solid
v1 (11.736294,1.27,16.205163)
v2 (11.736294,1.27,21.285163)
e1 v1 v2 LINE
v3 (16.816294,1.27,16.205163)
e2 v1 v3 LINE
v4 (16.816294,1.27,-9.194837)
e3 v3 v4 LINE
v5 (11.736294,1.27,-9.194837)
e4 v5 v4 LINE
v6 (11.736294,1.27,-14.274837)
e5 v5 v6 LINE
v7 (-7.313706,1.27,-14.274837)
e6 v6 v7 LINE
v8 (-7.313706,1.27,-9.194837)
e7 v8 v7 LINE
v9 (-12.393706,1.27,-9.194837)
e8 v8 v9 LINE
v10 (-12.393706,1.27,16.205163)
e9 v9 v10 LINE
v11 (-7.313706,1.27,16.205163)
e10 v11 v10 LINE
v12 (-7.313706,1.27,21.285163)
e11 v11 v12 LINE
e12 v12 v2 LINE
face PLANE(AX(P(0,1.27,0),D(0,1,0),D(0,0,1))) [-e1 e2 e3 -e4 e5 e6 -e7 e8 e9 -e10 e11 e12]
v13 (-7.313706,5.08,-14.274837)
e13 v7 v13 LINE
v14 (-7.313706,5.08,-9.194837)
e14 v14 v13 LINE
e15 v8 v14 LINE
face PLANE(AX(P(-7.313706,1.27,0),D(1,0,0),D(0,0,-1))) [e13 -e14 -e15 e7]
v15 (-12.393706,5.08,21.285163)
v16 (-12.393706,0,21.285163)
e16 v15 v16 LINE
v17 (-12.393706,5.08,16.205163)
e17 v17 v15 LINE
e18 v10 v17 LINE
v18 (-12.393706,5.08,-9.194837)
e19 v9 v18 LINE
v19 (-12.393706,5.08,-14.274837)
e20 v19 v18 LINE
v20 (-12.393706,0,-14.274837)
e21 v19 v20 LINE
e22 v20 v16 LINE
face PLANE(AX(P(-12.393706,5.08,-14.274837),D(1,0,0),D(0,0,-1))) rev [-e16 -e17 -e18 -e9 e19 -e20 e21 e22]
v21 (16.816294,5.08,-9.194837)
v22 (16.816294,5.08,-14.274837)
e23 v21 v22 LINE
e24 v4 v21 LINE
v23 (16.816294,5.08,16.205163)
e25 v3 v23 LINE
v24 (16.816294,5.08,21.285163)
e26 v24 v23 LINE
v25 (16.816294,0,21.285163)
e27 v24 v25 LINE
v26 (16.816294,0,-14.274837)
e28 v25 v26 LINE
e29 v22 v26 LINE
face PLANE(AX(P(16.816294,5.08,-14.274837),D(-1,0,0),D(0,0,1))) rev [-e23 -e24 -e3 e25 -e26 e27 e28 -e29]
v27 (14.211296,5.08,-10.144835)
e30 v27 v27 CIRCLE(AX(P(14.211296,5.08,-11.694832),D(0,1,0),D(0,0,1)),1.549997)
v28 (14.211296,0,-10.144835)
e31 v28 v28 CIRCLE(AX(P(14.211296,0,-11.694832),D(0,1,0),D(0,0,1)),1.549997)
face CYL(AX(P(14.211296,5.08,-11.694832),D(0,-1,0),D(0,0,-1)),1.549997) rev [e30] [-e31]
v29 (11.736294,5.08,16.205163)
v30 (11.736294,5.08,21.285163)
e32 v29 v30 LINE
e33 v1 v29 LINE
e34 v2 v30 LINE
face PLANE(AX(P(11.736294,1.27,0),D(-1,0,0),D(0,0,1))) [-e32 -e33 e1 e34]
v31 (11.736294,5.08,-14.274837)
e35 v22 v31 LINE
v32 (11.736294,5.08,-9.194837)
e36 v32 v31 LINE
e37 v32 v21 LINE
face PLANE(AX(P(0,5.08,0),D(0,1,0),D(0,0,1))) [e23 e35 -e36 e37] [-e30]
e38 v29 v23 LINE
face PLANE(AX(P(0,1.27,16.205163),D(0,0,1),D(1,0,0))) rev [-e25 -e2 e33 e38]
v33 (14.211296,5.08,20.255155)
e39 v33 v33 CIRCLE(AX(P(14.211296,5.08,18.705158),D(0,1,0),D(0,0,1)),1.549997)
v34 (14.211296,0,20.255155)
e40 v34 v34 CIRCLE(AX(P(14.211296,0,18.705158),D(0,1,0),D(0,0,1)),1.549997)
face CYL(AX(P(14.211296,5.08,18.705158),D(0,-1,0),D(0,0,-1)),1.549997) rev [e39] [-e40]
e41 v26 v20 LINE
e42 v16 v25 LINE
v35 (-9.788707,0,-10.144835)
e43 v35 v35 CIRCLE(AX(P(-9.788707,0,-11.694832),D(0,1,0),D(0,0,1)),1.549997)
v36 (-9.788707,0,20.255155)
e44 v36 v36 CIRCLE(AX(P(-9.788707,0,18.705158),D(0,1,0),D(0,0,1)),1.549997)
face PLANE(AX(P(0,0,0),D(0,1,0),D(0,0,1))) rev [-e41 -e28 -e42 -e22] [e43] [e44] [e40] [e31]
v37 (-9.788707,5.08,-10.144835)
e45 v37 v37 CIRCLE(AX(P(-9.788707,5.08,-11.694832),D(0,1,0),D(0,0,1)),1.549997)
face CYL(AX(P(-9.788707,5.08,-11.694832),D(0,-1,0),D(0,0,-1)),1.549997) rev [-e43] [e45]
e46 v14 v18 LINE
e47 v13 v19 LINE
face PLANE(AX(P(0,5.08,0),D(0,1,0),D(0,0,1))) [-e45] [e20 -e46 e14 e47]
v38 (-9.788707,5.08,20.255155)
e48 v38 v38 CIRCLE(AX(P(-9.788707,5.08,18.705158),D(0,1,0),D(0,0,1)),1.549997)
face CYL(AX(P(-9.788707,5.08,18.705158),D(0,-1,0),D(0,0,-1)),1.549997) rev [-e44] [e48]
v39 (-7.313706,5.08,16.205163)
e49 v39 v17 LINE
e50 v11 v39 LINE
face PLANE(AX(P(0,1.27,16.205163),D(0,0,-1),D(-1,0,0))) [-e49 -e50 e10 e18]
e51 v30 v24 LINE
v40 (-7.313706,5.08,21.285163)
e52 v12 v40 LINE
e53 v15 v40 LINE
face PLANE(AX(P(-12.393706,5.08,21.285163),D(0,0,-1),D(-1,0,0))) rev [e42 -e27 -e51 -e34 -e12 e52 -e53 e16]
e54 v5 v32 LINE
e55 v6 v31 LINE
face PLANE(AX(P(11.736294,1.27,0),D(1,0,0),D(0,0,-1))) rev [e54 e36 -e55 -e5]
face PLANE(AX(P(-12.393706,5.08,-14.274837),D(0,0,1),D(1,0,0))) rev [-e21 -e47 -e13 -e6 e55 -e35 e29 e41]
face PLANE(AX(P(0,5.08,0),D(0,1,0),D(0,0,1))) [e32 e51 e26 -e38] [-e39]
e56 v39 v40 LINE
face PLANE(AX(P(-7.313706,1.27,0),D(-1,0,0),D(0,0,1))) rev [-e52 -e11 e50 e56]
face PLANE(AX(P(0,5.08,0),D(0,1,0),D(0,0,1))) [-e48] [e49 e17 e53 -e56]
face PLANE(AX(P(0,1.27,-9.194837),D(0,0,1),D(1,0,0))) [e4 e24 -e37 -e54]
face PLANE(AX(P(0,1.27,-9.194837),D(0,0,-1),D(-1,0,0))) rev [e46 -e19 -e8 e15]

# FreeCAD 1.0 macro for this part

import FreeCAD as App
import Part
import Sketcher
from FreeCAD import Vector
Q = App.Units.Quantity

doc = App.newDocument("Part")
body = doc.addObject("PartDesign::Body", "Body")

# Sketch on XZ plane
sketch1 = body.newObject("Sketcher::SketchObject", "Sketch")
sketch1.AttachmentSupport = (doc.getObject("XZ_Plane"), [""])
sketch1.MapMode = "FlatFace"
sketch1.addGeometry([
    Part.LineSegment(Vector(-12.4, -14.3, 0), Vector(-12.4, 21.3, 0)),  # 0
    Part.LineSegment(Vector(-12.4, 21.3, 0), Vector(16.8, 21.3, 0)),  # 1
    Part.LineSegment(Vector(16.8, 21.3, 0), Vector(16.8, -14.3, 0)),  # 2
    Part.LineSegment(Vector(16.8, -14.3, 0), Vector(-12.4, -14.3, 0)),  # 3
    Part.Circle(Vector(-9.8, 18.7, 0), Vector(0, 0, 1), 1.5),  # 4
    Part.Circle(Vector(14.2, 18.7, 0), Vector(0, 0, 1), 1.5),  # 5
    Part.Circle(Vector(-9.8, -11.7, 0), Vector(0, 0, 1), 1.5),  # 6
    Part.Circle(Vector(14.2, -11.7, 0), Vector(0, 0, 1), 1.5),  # 7
], False)
sketch1.addConstraint([
    Sketcher.Constraint("Coincident", 0, 2, 1, 1),
    Sketcher.Constraint("Coincident", 1, 2, 2, 1),
    Sketcher.Constraint("Coincident", 2, 2, 3, 1),
    Sketcher.Constraint("Coincident", 3, 2, 0, 1),
    Sketcher.Constraint("Vertical", 0),
    Sketcher.Constraint("Horizontal", 1),
    Sketcher.Constraint("Vertical", 2),
    Sketcher.Constraint("Horizontal", 3),
    Sketcher.Constraint("Equal", 4, 5),
    Sketcher.Constraint("Equal", 5, 6),
    Sketcher.Constraint("Equal", 6, 7),
    Sketcher.Constraint("Horizontal", 4, 3, 5, 3),
    Sketcher.Constraint("Horizontal", 6, 3, 7, 3),
    Sketcher.Constraint("Vertical", 4, 3, 6, 3),
    Sketcher.Constraint("Vertical", 5, 3, 7, 3),
    Sketcher.Constraint("DistanceY", 0, 1, 0, 2, Q("1.4 in")),
    Sketcher.Constraint("DistanceX", 1, 1, 1, 2, Q("1.15 in")),
    Sketcher.Constraint("Diameter", 4, 3.099994),
    Sketcher.Constraint("DistanceX", -1, 1, 5, 3, Q("0.5594998 in")),
    Sketcher.Constraint("DistanceX", 0, 2, 4, 3, 2.604999),
    Sketcher.Constraint("DistanceX", 0, 2, 5, 3, 26.605001),
    Sketcher.Constraint("DistanceY", 6, 3, 4, 3, 30.39999),
    Sketcher.Constraint("DistanceY", -1, 1, 4, 3, 18.705158),
    Sketcher.Constraint("DistanceY", -1, 1, 0, 2, 21.285163),
])
pad1 = body.newObject("PartDesign::Pad", "Pad")
pad1.Profile = sketch1
pad1.Length = Q("0.2 in")
pad1.Reversed = True

# Sketch on XZ plane
sketch2 = body.newObject("Sketcher::SketchObject", "Sketch001")
sketch2.AttachmentSupport = (doc.getObject("XZ_Plane"), [""])
sketch2.MapMode = "FlatFace"
sketch2.AttachmentOffset = App.Placement(Vector(0, 0, -0.2 * 25.4), App.Rotation())
sketch2.addGeometry([
    Part.LineSegment(Vector(-12, -9, 0), Vector(-12, 16, 0)),  # 0
    Part.LineSegment(Vector(-12, 16, 0), Vector(-7, 16, 0)),  # 1
    Part.LineSegment(Vector(-7, 16, 0), Vector(-7, 21, 0)),  # 2
    Part.LineSegment(Vector(-7, 21, 0), Vector(12, 21, 0)),  # 3
    Part.LineSegment(Vector(12, 21, 0), Vector(12, 16, 0)),  # 4
    Part.LineSegment(Vector(12, 16, 0), Vector(17, 16, 0)),  # 5
    Part.LineSegment(Vector(17, 16, 0), Vector(17, -9, 0)),  # 6
    Part.LineSegment(Vector(17, -9, 0), Vector(12, -9, 0)),  # 7
    Part.LineSegment(Vector(12, -9, 0), Vector(12, -14, 0)),  # 8
    Part.LineSegment(Vector(12, -14, 0), Vector(-7, -14, 0)),  # 9
    Part.LineSegment(Vector(-7, -14, 0), Vector(-7, -9, 0)),  # 10
    Part.LineSegment(Vector(-7, -9, 0), Vector(-12, -9, 0)),  # 11
], False)
sketch2.addConstraint([
    Sketcher.Constraint("Coincident", 0, 2, 1, 1),
    Sketcher.Constraint("Coincident", 1, 2, 2, 1),
    Sketcher.Constraint("Coincident", 2, 2, 3, 1),
    Sketcher.Constraint("Coincident", 3, 2, 4, 1),
    Sketcher.Constraint("Coincident", 4, 2, 5, 1),
    Sketcher.Constraint("Coincident", 5, 2, 6, 1),
    Sketcher.Constraint("Coincident", 6, 2, 7, 1),
    Sketcher.Constraint("Coincident", 7, 2, 8, 1),
    Sketcher.Constraint("Coincident", 8, 2, 9, 1),
    Sketcher.Constraint("Coincident", 9, 2, 10, 1),
    Sketcher.Constraint("Coincident", 10, 2, 11, 1),
    Sketcher.Constraint("Coincident", 11, 2, 0, 1),
    Sketcher.Constraint("Vertical", 0),
    Sketcher.Constraint("Horizontal", 1),
    Sketcher.Constraint("Vertical", 2),
    Sketcher.Constraint("Horizontal", 3),
    Sketcher.Constraint("Vertical", 4),
    Sketcher.Constraint("Horizontal", 5),
    Sketcher.Constraint("Vertical", 6),
    Sketcher.Constraint("Horizontal", 7),
    Sketcher.Constraint("Vertical", 8),
    Sketcher.Constraint("Horizontal", 9),
    Sketcher.Constraint("Vertical", 10),
    Sketcher.Constraint("Horizontal", 11),
    Sketcher.Constraint("Horizontal", 1, 2, 4, 2),
    Sketcher.Constraint("Horizontal", 7, 2, 10, 2),
    Sketcher.Constraint("Vertical", 4, 2, 7, 2),
    Sketcher.Constraint("Vertical", 2, 2, 9, 2),
    Sketcher.Constraint("Equal", 1, 5),
    Sketcher.Constraint("Equal", 11, 2),
    Sketcher.Constraint("Equal", 4, 8),
    Sketcher.Constraint("DistanceY", 0, 1, 0, 2, Q("1 in")),
    Sketcher.Constraint("DistanceX", 1, 1, 1, 2, Q("0.2 in")),
    Sketcher.Constraint("DistanceX", 3, 1, 3, 2, Q("0.75 in")),
    Sketcher.Constraint("DistanceX", 0, 2, -1, 1, 12.393706),
    Sketcher.Constraint("DistanceY", -1, 1, 0, 2, 16.205163),
])
pocket1 = body.newObject("PartDesign::Pocket", "Pocket")
pocket1.Profile = sketch2
pocket1.Length = Q("0.15 in")
pocket1.Reversed = True

doc.recompute()
